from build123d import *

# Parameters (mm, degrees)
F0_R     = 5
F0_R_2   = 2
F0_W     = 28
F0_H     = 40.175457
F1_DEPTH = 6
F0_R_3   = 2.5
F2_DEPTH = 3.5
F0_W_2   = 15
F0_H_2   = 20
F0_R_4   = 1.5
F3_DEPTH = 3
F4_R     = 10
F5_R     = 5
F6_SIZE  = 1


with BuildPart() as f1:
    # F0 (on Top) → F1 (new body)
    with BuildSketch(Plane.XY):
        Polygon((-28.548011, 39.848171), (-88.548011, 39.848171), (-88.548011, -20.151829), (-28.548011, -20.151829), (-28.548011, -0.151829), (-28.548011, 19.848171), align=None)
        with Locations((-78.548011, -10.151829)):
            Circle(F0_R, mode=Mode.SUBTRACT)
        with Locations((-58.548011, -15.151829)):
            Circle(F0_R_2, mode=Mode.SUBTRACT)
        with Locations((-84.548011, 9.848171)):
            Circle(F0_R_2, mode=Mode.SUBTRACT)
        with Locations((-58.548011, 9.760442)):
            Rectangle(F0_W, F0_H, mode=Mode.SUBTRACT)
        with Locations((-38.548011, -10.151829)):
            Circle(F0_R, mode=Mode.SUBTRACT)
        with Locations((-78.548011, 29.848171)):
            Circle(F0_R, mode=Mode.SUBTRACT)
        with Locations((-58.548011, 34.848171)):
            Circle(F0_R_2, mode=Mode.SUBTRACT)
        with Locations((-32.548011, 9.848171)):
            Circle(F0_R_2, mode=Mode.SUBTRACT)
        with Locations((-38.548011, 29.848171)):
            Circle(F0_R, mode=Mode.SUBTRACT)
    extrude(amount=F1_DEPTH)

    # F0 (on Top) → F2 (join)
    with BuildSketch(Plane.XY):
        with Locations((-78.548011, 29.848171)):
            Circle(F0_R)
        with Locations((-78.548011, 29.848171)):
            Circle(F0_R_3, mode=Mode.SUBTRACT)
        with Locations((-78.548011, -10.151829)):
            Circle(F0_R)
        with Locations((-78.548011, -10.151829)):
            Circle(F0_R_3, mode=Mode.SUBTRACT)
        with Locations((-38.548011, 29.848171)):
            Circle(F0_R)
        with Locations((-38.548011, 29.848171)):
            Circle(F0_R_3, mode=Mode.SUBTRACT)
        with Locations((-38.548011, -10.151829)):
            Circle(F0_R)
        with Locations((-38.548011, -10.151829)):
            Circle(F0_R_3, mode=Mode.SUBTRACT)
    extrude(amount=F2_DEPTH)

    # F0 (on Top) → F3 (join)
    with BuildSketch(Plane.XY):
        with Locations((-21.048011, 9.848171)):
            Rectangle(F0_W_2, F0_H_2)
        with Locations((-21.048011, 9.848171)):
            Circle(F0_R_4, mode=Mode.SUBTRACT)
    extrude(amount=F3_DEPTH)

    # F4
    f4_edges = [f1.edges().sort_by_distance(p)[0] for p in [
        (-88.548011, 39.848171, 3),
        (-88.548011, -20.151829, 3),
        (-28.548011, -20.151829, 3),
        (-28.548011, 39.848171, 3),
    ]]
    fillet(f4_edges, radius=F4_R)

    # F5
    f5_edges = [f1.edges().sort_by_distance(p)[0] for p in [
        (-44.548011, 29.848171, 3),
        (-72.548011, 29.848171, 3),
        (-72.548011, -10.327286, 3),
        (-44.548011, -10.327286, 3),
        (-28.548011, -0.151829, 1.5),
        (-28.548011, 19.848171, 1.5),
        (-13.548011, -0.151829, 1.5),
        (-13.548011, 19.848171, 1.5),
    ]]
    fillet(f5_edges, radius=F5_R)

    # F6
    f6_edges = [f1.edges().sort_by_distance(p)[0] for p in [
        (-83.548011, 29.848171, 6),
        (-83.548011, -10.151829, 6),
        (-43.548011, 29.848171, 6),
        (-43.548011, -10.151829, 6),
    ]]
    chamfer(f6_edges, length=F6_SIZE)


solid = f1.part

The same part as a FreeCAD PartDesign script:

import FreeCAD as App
import Part
import Sketcher

V = App.Vector
Q = App.Units.Quantity


def edges_at(feature, points):
    """Names of the edges that pass closest to the given points."""
    edges = feature.Shape.Edges
    near = lambda p: min(range(len(edges)), key=lambda i: edges[i].distToShape(Part.Vertex(*p))[0])
    return sorted({f"Edge{near(p) + 1}" for p in points})

doc = App.newDocument("Part")
body = doc.addObject("PartDesign::Body", "Body")

sketch1 = doc.addObject("Sketcher::SketchObject", "Sketch")
body.addObject(sketch1)
sketch1.AttachmentSupport = (doc.XY_Plane, [""])
sketch1.MapMode = "FlatFace"
sketch1.addGeometry([
    Part.LineSegment(V(-28.548011, 39.848171, 0), V(-88.548011, 39.848171, 0)),
    Part.LineSegment(V(-88.548011, 39.848171, 0), V(-88.548011, -20.151829, 0)),
    Part.LineSegment(V(-88.548011, -20.151829, 0), V(-28.548011, -20.151829, 0)),
    Part.LineSegment(V(-28.548011, -20.151829, 0), V(-28.548011, 39.848171, 0)),
    Part.Circle(V(-78.548011, -10.151829, 0), V(0, 0, 1), 5),
    Part.Circle(V(-58.548011, -15.151829, 0), V(0, 0, 1), 2),
    Part.Circle(V(-38.548011, -10.151829, 0), V(0, 0, 1), 5),
    Part.LineSegment(V(-44.548011, -10.327286, 0), V(-72.548011, -10.327286, 0)),
    Part.LineSegment(V(-72.548011, -10.327286, 0), V(-72.548011, 29.84817, 0)),
    Part.LineSegment(V(-72.548011, 29.84817, 0), V(-44.548011, 29.84817, 0)),
    Part.LineSegment(V(-44.548011, 29.84817, 0), V(-44.548011, -10.327286, 0)),
    Part.Circle(V(-84.548011, 9.848171, 0), V(0, 0, 1), 2),
    Part.Circle(V(-78.548011, 29.848171, 0), V(0, 0, 1), 5),
    Part.Circle(V(-32.548011, 9.848171, 0), V(0, 0, 1), 2),
    Part.Circle(V(-58.548011, 34.848171, 0), V(0, 0, 1), 2),
    Part.Circle(V(-38.548011, 29.848171, 0), V(0, 0, 1), 5),
], False)
sketch1.addConstraint([
    Sketcher.Constraint("Coincident", 0, 2, 1, 1),
    Sketcher.Constraint("Coincident", 1, 2, 2, 1),
    Sketcher.Constraint("Coincident", 2, 2, 3, 1),
    Sketcher.Constraint("Coincident", 3, 2, 0, 1),
    Sketcher.Constraint("Coincident", 7, 2, 8, 1),
    Sketcher.Constraint("Coincident", 8, 2, 9, 1),
    Sketcher.Constraint("Coincident", 9, 2, 10, 1),
    Sketcher.Constraint("Coincident", 10, 2, 7, 1),
    Sketcher.Constraint("Horizontal", 0),
    Sketcher.Constraint("Vertical", 1),
    Sketcher.Constraint("Horizontal", 2),
    Sketcher.Constraint("Vertical", 3),
    Sketcher.Constraint("Horizontal", 7),
    Sketcher.Constraint("Vertical", 8),
    Sketcher.Constraint("Horizontal", 9),
    Sketcher.Constraint("Vertical", 10),
    Sketcher.Constraint("Equal", 4, 6),
    Sketcher.Constraint("Equal", 5, 11),
    Sketcher.Constraint("Equal", 6, 12),
    Sketcher.Constraint("Equal", 11, 13),
    Sketcher.Constraint("Equal", 13, 14),
    Sketcher.Constraint("Equal", 12, 15),
    Sketcher.Constraint("Horizontal", 4, 3, 6, 3),
    Sketcher.Constraint("Horizontal", 11, 3, 13, 3),
    Sketcher.Constraint("Horizontal", 12, 3, 15, 3),
    Sketcher.Constraint("Horizontal", 15, 3, 8, 2),
    Sketcher.Constraint("Vertical", 4, 3, 12, 3),
    Sketcher.Constraint("Vertical", 5, 3, 14, 3),
    Sketcher.Constraint("Vertical", 6, 3, 15, 3),
    Sketcher.Constraint("Equal", 2, 1),
    Sketcher.Constraint("Diameter", 4, Q("10 mm")),
    Sketcher.Constraint("Diameter", 5, Q("4 mm")),
    Sketcher.Constraint("DistanceX", 0, 2, 0, 1, Q("60 mm")),
    Sketcher.Constraint("DistanceX", 7, 2, 7, 1, Q("28 mm")),
    Sketcher.Constraint("DistanceX", 4, 3, 5, 3, Q("20 mm")),
    Sketcher.Constraint("DistanceY", 5, 3, 4, 3, Q("5 mm")),
    Sketcher.Constraint("DistanceX", 5, 3, 6, 3, Q("20 mm")),
    Sketcher.Constraint("DistanceX", 11, 3, 4, 3, Q("6 mm")),
    Sketcher.Constraint("DistanceY", 4, 3, 11, 3, Q("20 mm")),
    Sketcher.Constraint("DistanceY", 11, 3, 12, 3, Q("20 mm")),
    Sketcher.Constraint("DistanceX", 6, 3, 13, 3, Q("6 mm")),
    Sketcher.Constraint("DistanceY", 12, 3, 14, 3, Q("5 mm")),
    Sketcher.Constraint("DistanceX", 0, 2, 12, 3, Q("10 mm")),
    Sketcher.Constraint("DistanceY", 12, 3, 0, 2, Q("10 mm")),
    Sketcher.Constraint("DistanceX", 4, 3, 7, 2, Q("6 mm")),
    Sketcher.Constraint("DistanceY", 8, 1, 8, 2, Q("40.175457 mm")),
    Sketcher.Constraint("DistanceX", 4, 3, -1, 1, Q("78.548011 mm")),
    Sketcher.Constraint("DistanceY", 4, 3, -1, 1, Q("10.151829 mm")),
])
pad1 = doc.addObject("PartDesign::Pad", "Pad")
body.addObject(pad1)
pad1.Profile = sketch1
pad1.Length = 6

sketch2 = doc.addObject("Sketcher::SketchObject", "Sketch001")
body.addObject(sketch2)
sketch2.AttachmentSupport = (doc.XY_Plane, [""])
sketch2.MapMode = "FlatFace"
sketch2.addGeometry([
    Part.Circle(V(-78.548011, 29.848171, 0), V(0, 0, 1), 5),
    Part.Circle(V(-78.548011, 29.848171, 0), V(0, 0, 1), 2.5),
    Part.Circle(V(-78.548011, -10.151829, 0), V(0, 0, 1), 5),
    Part.Circle(V(-78.548011, -10.151829, 0), V(0, 0, 1), 2.5),
    Part.Circle(V(-38.548011, 29.848171, 0), V(0, 0, 1), 5),
    Part.Circle(V(-38.548011, 29.848171, 0), V(0, 0, 1), 2.5),
    Part.Circle(V(-38.548011, -10.151829, 0), V(0, 0, 1), 5),
    Part.Circle(V(-38.548011, -10.151829, 0), V(0, 0, 1), 2.5),
], False)
sketch2.addConstraint([
    Sketcher.Constraint("Coincident", 1, 3, 0, 3),
    Sketcher.Constraint("Coincident", 3, 3, 2, 3),
    Sketcher.Constraint("Coincident", 5, 3, 4, 3),
    Sketcher.Constraint("Coincident", 7, 3, 6, 3),
    Sketcher.Constraint("Equal", 0, 2),
    Sketcher.Constraint("Equal", 1, 3),
    Sketcher.Constraint("Equal", 2, 4),
    Sketcher.Constraint("Equal", 3, 5),
    Sketcher.Constraint("Equal", 4, 6),
    Sketcher.Constraint("Equal", 5, 7),
    Sketcher.Constraint("Horizontal", 1, 3, 4, 3),
    Sketcher.Constraint("Horizontal", 3, 3, 6, 3),
    Sketcher.Constraint("Vertical", 1, 3, 2, 3),
    Sketcher.Constraint("Vertical", 5, 3, 6, 3),
    Sketcher.Constraint("Diameter", 0, Q("10 mm")),
    Sketcher.Constraint("Diameter", 1, Q("5 mm")),
    Sketcher.Constraint("DistanceY", 2, 3, 0, 3, Q("40 mm")),
    Sketcher.Constraint("DistanceX", 0, 3, 4, 3, Q("40 mm")),
    Sketcher.Constraint("DistanceX", 0, 3, -1, 1, Q("78.548011 mm")),
    Sketcher.Constraint("DistanceY", -1, 1, 0, 3, Q("29.848171 mm")),
])
pad2 = doc.addObject("PartDesign::Pad", "Pad001")
body.addObject(pad2)
pad2.Profile = sketch2
pad2.Length = 3.5

sketch3 = doc.addObject("Sketcher::SketchObject", "Sketch002")
body.addObject(sketch3)
sketch3.AttachmentSupport = (doc.XY_Plane, [""])
sketch3.MapMode = "FlatFace"
sketch3.addGeometry([
    Part.LineSegment(V(-28.548011, 19.848171, 0), V(-28.548011, -0.151829, 0)),
    Part.LineSegment(V(-28.548011, -0.151829, 0), V(-13.548011, -0.151829, 0)),
    Part.LineSegment(V(-13.548011, -0.151829, 0), V(-13.548011, 19.848171, 0)),
    Part.LineSegment(V(-13.548011, 19.848171, 0), V(-28.548011, 19.848171, 0)),
    Part.Circle(V(-21.048011, 9.848171, 0), V(0, 0, 1), 1.5),
], False)
sketch3.addConstraint([
    Sketcher.Constraint("Coincident", 0, 2, 1, 1),
    Sketcher.Constraint("Coincident", 1, 2, 2, 1),
    Sketcher.Constraint("Coincident", 2, 2, 3, 1),
    Sketcher.Constraint("Coincident", 3, 2, 0, 1),
    Sketcher.Constraint("Vertical", 0),
    Sketcher.Constraint("Horizontal", 1),
    Sketcher.Constraint("Vertical", 2),
    Sketcher.Constraint("Horizontal", 3),
    Sketcher.Constraint("Diameter", 4, Q("3 mm")),
    Sketcher.Constraint("DistanceX", 1, 1, 1, 2, Q("15 mm")),
    Sketcher.Constraint("DistanceY", 0, 2, 0, 1, Q("20 mm")),
    Sketcher.Constraint("DistanceY", 0, 2, 4, 3, Q("10 mm")),
    Sketcher.Constraint("DistanceX", 0, 2, 4, 3, Q("7.5 mm")),
    Sketcher.Constraint("DistanceX", 4, 3, -1, 1, Q("21.048011 mm")),
    Sketcher.Constraint("DistanceY", -1, 1, 4, 3, Q("9.848171 mm")),
])
pad3 = doc.addObject("PartDesign::Pad", "Pad002")
body.addObject(pad3)
pad3.Profile = sketch3
pad3.Length = 3
doc.recompute()

fillet = doc.addObject("PartDesign::Fillet", "Fillet")
body.addObject(fillet)
fillet.Base = (pad3, edges_at(pad3, [
    (-88.548, 39.848, 3),
    (-88.548, -20.152, 3),
    (-28.548, -20.152, 3),
    (-28.548, 39.848, 3),
]))
fillet.Radius = 10
doc.recompute()

fillet2 = doc.addObject("PartDesign::Fillet", "Fillet001")
body.addObject(fillet2)
fillet2.Base = (fillet, edges_at(fillet, [
    (-44.548, 29.848, 3),
    (-72.548, 29.848, 3),
    (-72.548, -10.327, 3),
    (-44.548, -10.327, 3),
    (-28.548, -0.152, 1.5),
    (-28.548, 19.848, 1.5),
    (-13.548, -0.152, 1.5),
    (-13.548, 19.848, 1.5),
]))
fillet2.Radius = 5
doc.recompute()

chamfer = doc.addObject("PartDesign::Chamfer", "Chamfer")
body.addObject(chamfer)
chamfer.Base = (fillet2, edges_at(fillet2, [
    (-83.548, 29.848, 6),
    (-83.548, -10.152, 6),
    (-43.548, 29.848, 6),
    (-43.548, -10.152, 6),
]))
chamfer.Size = 1

doc.recompute()
